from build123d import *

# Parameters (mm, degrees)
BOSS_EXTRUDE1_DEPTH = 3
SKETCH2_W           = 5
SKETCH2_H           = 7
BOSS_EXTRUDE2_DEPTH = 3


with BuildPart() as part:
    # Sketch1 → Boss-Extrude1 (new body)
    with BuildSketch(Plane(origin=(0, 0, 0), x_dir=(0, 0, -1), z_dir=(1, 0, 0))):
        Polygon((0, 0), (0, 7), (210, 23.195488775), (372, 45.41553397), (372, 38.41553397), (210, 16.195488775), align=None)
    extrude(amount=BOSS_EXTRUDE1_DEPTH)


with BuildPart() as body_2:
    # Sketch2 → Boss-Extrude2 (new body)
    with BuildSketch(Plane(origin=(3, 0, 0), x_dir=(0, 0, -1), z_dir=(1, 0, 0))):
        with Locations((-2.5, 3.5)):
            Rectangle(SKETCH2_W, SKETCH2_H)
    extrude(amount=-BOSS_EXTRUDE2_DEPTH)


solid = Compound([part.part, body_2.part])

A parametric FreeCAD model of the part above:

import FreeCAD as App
import Part
import Sketcher
Q = App.Units.Quantity


def add_polygon(sketch, points):
    """Adds a closed chain of lines whose ends are joined by coincident constraints."""
    first, n = sketch.GeometryCount, len(points)
    for a, b in zip(points, points[1:] + points[:1]):
        sketch.addGeometry(Part.LineSegment(App.Vector(*a, 0), App.Vector(*b, 0)), False)
    for i in range(n):
        sketch.addConstraint(Sketcher.Constraint("Coincident", first + i, 2, first + (i + 1) % n, 1))

doc = App.newDocument("Part")
params = doc.addObject("Spreadsheet::Sheet", "Params")
for row, (alias, value) in enumerate([
    ("sketch1_width", "7 mm"),
    ("pad1_length", "3 mm"),
    ("sketch2_width", "7 mm"),
    ("sketch2_height", "5 mm"),
    ("pad2_length", "3 mm"),
], start=1):
    params.set(f"A{row}", alias)
    params.set(f"B{row}", "=" + value)
    params.setAlias(f"B{row}", alias)

body = doc.addObject("PartDesign::Body", "Body")

sketch1 = doc.addObject("Sketcher::SketchObject", "Sketch")
body.addObject(sketch1)
sketch1.AttachmentSupport = (doc.YZ_Plane, [""])
sketch1.MapMode = "FlatFace"
add_polygon(sketch1, [(7, 0), (0, 0), (16, -210), (38, -372), (45, -372), (23, -210)])
sketch1.addConstraint(Sketcher.Constraint("Horizontal", 0))
sketch1.addConstraint(Sketcher.Constraint("Horizontal", 3))
sketch1.addConstraint(Sketcher.Constraint("Coincident", 0, 2, -1, 1))
sketch1.addConstraint(Sketcher.Constraint("Parallel", 2, 4))
sketch1.addConstraint(Sketcher.Constraint("Parallel", 1, 5))
sketch1.addConstraint(Sketcher.Constraint("Horizontal", 1, 2, 4, 2))
sketch1.addConstraint(Sketcher.Constraint("DistanceX", 0, 2, 0, 1, 7.0))
sketch1.addConstraint(Sketcher.Constraint("DistanceY", 1, 2, -1, 1, 210.0))
sketch1.addConstraint(Sketcher.Constraint("DistanceY", 2, 2, -1, 1, 372.0))
sketch1.addConstraint(Sketcher.Constraint("Angle", 1, Q("-85.59 deg")))
sketch1.addConstraint(Sketcher.Constraint("Angle", 2, Q("-82.19 deg")))
sketch1.setExpression("Constraints[12]", "Params.sketch1_width")
pad1 = doc.addObject("PartDesign::Pad", "Pad")
body.addObject(pad1)
pad1.Profile = sketch1
pad1.setExpression("Length", "Params.pad1_length")
body2 = doc.addObject("PartDesign::Body", "Body001")

sketch2 = doc.addObject("Sketcher::SketchObject", "Sketch001")
body2.addObject(sketch2)
sketch2.AttachmentSupport = (doc.getObject("YZ_Plane001"), [""])
sketch2.MapMode = "FlatFace"
sketch2.AttachmentOffset = App.Placement(App.Vector(0, 0, 3), App.Rotation())
add_polygon(sketch2, [(7, 5), (0, 5), (0, 0), (7, 0)])
sketch2.addConstraint(Sketcher.Constraint("Horizontal", 0))
sketch2.addConstraint(Sketcher.Constraint("Vertical", 1))
sketch2.addConstraint(Sketcher.Constraint("Horizontal", 2))
sketch2.addConstraint(Sketcher.Constraint("Vertical", 3))
sketch2.addConstraint(Sketcher.Constraint("Coincident", 1, 2, -1, 1))
sketch2.addConstraint(Sketcher.Constraint("DistanceX", 0, 2, 0, 1, 7.0))
sketch2.addConstraint(Sketcher.Constraint("DistanceY", 1, 2, 1, 1, 5.0))
sketch2.setExpression("Constraints[9]", "Params.sketch2_width")
sketch2.setExpression("Constraints[10]", "Params.sketch2_height")
pad2 = doc.addObject("PartDesign::Pad", "Pad001")
body2.addObject(pad2)
pad2.Profile = sketch2
pad2.setExpression("Length", "Params.pad2_length")
pad2.Reversed = True

doc.recompute()
